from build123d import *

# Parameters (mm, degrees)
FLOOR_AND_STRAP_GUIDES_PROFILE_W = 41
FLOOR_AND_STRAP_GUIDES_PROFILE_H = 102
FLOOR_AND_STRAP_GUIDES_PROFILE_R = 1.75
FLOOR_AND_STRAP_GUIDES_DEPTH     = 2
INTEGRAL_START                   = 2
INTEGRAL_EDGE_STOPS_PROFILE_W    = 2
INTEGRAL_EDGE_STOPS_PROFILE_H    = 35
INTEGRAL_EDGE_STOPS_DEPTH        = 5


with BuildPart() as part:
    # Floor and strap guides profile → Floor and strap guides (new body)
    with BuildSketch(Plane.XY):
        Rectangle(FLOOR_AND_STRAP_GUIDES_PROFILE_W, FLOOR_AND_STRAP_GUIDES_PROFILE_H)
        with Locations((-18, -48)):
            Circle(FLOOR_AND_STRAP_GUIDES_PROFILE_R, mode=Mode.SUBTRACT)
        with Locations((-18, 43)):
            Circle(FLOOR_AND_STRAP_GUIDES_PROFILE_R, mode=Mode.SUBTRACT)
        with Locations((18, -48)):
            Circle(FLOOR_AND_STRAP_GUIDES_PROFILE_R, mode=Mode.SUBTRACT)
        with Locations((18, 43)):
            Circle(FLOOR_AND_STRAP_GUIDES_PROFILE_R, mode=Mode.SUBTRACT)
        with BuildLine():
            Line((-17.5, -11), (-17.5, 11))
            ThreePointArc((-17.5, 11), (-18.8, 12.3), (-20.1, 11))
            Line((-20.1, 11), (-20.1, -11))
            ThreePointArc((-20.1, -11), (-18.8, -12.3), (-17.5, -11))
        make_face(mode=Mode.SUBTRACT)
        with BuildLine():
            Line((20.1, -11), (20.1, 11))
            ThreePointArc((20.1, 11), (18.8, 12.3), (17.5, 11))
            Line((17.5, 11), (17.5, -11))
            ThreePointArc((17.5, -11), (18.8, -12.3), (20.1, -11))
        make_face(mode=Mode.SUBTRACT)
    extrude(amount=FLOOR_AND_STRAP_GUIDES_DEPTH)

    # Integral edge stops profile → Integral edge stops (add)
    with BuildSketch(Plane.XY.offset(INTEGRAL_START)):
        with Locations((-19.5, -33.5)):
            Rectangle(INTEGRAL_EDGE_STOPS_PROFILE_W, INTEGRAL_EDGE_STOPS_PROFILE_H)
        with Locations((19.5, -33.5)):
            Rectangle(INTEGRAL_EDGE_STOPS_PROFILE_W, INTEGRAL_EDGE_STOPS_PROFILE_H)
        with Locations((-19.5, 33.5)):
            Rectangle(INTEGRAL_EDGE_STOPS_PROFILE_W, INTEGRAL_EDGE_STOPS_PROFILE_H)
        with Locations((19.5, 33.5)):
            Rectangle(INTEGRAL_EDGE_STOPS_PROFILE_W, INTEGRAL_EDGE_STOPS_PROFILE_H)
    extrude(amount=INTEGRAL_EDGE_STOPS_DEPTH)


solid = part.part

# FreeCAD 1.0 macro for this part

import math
import FreeCAD as App
import Part
import Sketcher
from FreeCAD import Vector

doc = App.newDocument("Part")
body = doc.addObject("PartDesign::Body", "Body")

sketch1 = doc.addObject("Sketcher::SketchObject", "Sketch")
body.addObject(sketch1)
sketch1.AttachmentSupport = (doc.XY_Plane, [""])
sketch1.MapMode = "FlatFace"
sketch1.addGeometry(Part.LineSegment(Vector(-20.5, 51, 0), Vector(-20.5, -51, 0)), False)
sketch1.addGeometry(Part.LineSegment(Vector(-20.5, -51, 0), Vector(20.5, -51, 0)), False)
sketch1.addGeometry(Part.LineSegment(Vector(20.5, -51, 0), Vector(20.5, 51, 0)), False)
sketch1.addGeometry(Part.LineSegment(Vector(20.5, 51, 0), Vector(-20.5, 51, 0)), False)
sketch1.addGeometry(Part.Circle(Vector(-18, -48, 0), Vector(0, 0, 1), 1.8), False)
sketch1.addGeometry(Part.Circle(Vector(18, -48, 0), Vector(0, 0, 1), 1.8), False)
sketch1.addGeometry(Part.LineSegment(Vector(-17.5, 11, 0), Vector(-17.5, -11, 0)), False)
sketch1.addGeometry(Part.ArcOfCircle(Part.Circle(Vector(-18.8, -11, 0), Vector(0, 0, 1), 1.3), math.radians(180), math.radians(360)), False)
sketch1.addGeometry(Part.LineSegment(Vector(-20.1, -11, 0), Vector(-20.1, 11, 0)), False)
sketch1.addGeometry(Part.ArcOfCircle(Part.Circle(Vector(-18.8, 11, 0), Vector(0, 0, 1), 1.3), math.radians(0), math.radians(180)), False)
sketch1.addGeometry(Part.Circle(Vector(-18, 43, 0), Vector(0, 0, 1), 1.8), False)
sketch1.addGeometry(Part.LineSegment(Vector(20.1, 11, 0), Vector(20.1, -11, 0)), False)
sketch1.addGeometry(Part.ArcOfCircle(Part.Circle(Vector(18.8, -11, 0), Vector(0, 0, 1), 1.3), math.radians(180), math.radians(360)), False)
sketch1.addGeometry(Part.LineSegment(Vector(17.5, -11, 0), Vector(17.5, 11, 0)), False)
sketch1.addGeometry(Part.ArcOfCircle(Part.Circle(Vector(18.8, 11, 0), Vector(0, 0, 1), 1.3), math.radians(0), math.radians(180)), False)
sketch1.addGeometry(Part.Circle(Vector(18, 43, 0), Vector(0, 0, 1), 1.8), False)
sketch1.addConstraint(Sketcher.Constraint("Coincident", 0, 2, 1, 1))
sketch1.addConstraint(Sketcher.Constraint("Coincident", 1, 2, 2, 1))
sketch1.addConstraint(Sketcher.Constraint("Coincident", 2, 2, 3, 1))
sketch1.addConstraint(Sketcher.Constraint("Coincident", 3, 2, 0, 1))
sketch1.addConstraint(Sketcher.Constraint("Tangent", 6, 2, 7, 2))
sketch1.addConstraint(Sketcher.Constraint("Tangent", 7, 1, 8, 1))
sketch1.addConstraint(Sketcher.Constraint("Tangent", 8, 2, 9, 2))
sketch1.addConstraint(Sketcher.Constraint("Tangent", 9, 1, 6, 1))
sketch1.addConstraint(Sketcher.Constraint("Tangent", 11, 2, 12, 2))
sketch1.addConstraint(Sketcher.Constraint("Tangent", 12, 1, 13, 1))
sketch1.addConstraint(Sketcher.Constraint("Tangent", 13, 2, 14, 2))
sketch1.addConstraint(Sketcher.Constraint("Tangent", 14, 1, 11, 1))
sketch1.addConstraint(Sketcher.Constraint("Vertical", 0))
sketch1.addConstraint(Sketcher.Constraint("Horizontal", 1))
sketch1.addConstraint(Sketcher.Constraint("Vertical", 2))
sketch1.addConstraint(Sketcher.Constraint("Horizontal", 3))
sketch1.addConstraint(Sketcher.Constraint("Vertical", 6))
sketch1.addConstraint(Sketcher.Constraint("Vertical", 8))
sketch1.addConstraint(Sketcher.Constraint("Vertical", 11))
sketch1.addConstraint(Sketcher.Constraint("Vertical", 13))
sketch1.addConstraint(Sketcher.Constraint("Equal", 4, 5))
sketch1.addConstraint(Sketcher.Constraint("Equal", 5, 10))
sketch1.addConstraint(Sketcher.Constraint("Equal", 9, 12))
sketch1.addConstraint(Sketcher.Constraint("Equal", 10, 15))
sketch1.addConstraint(Sketcher.Constraint("Symmetric", 9, 3, 12, 3, -1, 1))
sketch1.addConstraint(Sketcher.Constraint("Symmetric", 0, 2, 2, 2, -1, 1))
sketch1.addConstraint(Sketcher.Constraint("Symmetric", 4, 3, 5, 3, -2))
sketch1.addConstraint(Sketcher.Constraint("Symmetric", 10, 3, 15, 3, -2))
sketch1.addConstraint(Sketcher.Constraint("Horizontal", 7, 3, 12, 3))
sketch1.addConstraint(Sketcher.Constraint("Horizontal", 9, 3, 14, 3))
sketch1.addConstraint(Sketcher.Constraint("Vertical", 4, 3, 10, 3))
sketch1.addConstraint(Sketcher.Constraint("Diameter", 4, 3.5))
sketch1.addConstraint(Sketcher.Constraint("Radius", 7, 1.3))
sketch1.addConstraint(Sketcher.Constraint("DistanceX", 1, 1, 1, 2, 41.0))
sketch1.addConstraint(Sketcher.Constraint("DistanceY", 0, 2, 0, 1, 102.0))
sketch1.addConstraint(Sketcher.Constraint("DistanceY", 6, 2, 6, 1, 22.0))
sketch1.addConstraint(Sketcher.Constraint("DistanceX", 4, 3, -1, 1, 18.0))
sketch1.addConstraint(Sketcher.Constraint("DistanceY", 4, 3, -1, 1, 48.0))
sketch1.addConstraint(Sketcher.Constraint("DistanceY", -1, 1, 10, 3, 43.0))
sketch1.addConstraint(Sketcher.Constraint("DistanceX", 0, 2, 6, 2, 3.0))
pad1 = doc.addObject("PartDesign::Pad", "Pad")
body.addObject(pad1)
pad1.Profile = sketch1
pad1.Length = 2

sketch2 = doc.addObject("Sketcher::SketchObject", "Sketch001")
body.addObject(sketch2)
sketch2.AttachmentSupport = (doc.XY_Plane, [""])
sketch2.MapMode = "FlatFace"
sketch2.AttachmentOffset = App.Placement(Vector(0, 0, 2), App.Rotation())
sketch2.addGeometry(Part.LineSegment(Vector(-20.5, -16, 0), Vector(-20.5, -51, 0)), False)
sketch2.addGeometry(Part.LineSegment(Vector(-20.5, -51, 0), Vector(-18.5, -51, 0)), False)
sketch2.addGeometry(Part.LineSegment(Vector(-18.5, -51, 0), Vector(-18.5, -16, 0)), False)
sketch2.addGeometry(Part.LineSegment(Vector(-18.5, -16, 0), Vector(-20.5, -16, 0)), False)
sketch2.addGeometry(Part.LineSegment(Vector(18.5, -16, 0), Vector(18.5, -51, 0)), False)
sketch2.addGeometry(Part.LineSegment(Vector(18.5, -51, 0), Vector(20.5, -51, 0)), False)
sketch2.addGeometry(Part.LineSegment(Vector(20.5, -51, 0), Vector(20.5, -16, 0)), False)
sketch2.addGeometry(Part.LineSegment(Vector(20.5, -16, 0), Vector(18.5, -16, 0)), False)
sketch2.addGeometry(Part.LineSegment(Vector(-20.5, 51, 0), Vector(-20.5, 16, 0)), False)
sketch2.addGeometry(Part.LineSegment(Vector(-20.5, 16, 0), Vector(-18.5, 16, 0)), False)
sketch2.addGeometry(Part.LineSegment(Vector(-18.5, 16, 0), Vector(-18.5, 51, 0)), False)
sketch2.addGeometry(Part.LineSegment(Vector(-18.5, 51, 0), Vector(-20.5, 51, 0)), False)
sketch2.addGeometry(Part.LineSegment(Vector(18.5, 51, 0), Vector(18.5, 16, 0)), False)
sketch2.addGeometry(Part.LineSegment(Vector(18.5, 16, 0), Vector(20.5, 16, 0)), False)
sketch2.addGeometry(Part.LineSegment(Vector(20.5, 16, 0), Vector(20.5, 51, 0)), False)
sketch2.addGeometry(Part.LineSegment(Vector(20.5, 51, 0), Vector(18.5, 51, 0)), False)
sketch2.addConstraint(Sketcher.Constraint("Coincident", 0, 2, 1, 1))
sketch2.addConstraint(Sketcher.Constraint("Coincident", 1, 2, 2, 1))
sketch2.addConstraint(Sketcher.Constraint("Coincident", 2, 2, 3, 1))
sketch2.addConstraint(Sketcher.Constraint("Coincident", 3, 2, 0, 1))
sketch2.addConstraint(Sketcher.Constraint("Coincident", 4, 2, 5, 1))
sketch2.addConstraint(Sketcher.Constraint("Coincident", 5, 2, 6, 1))
sketch2.addConstraint(Sketcher.Constraint("Coincident", 6, 2, 7, 1))
sketch2.addConstraint(Sketcher.Constraint("Coincident", 7, 2, 4, 1))
sketch2.addConstraint(Sketcher.Constraint("Coincident", 8, 2, 9, 1))
sketch2.addConstraint(Sketcher.Constraint("Coincident", 9, 2, 10, 1))
sketch2.addConstraint(Sketcher.Constraint("Coincident", 10, 2, 11, 1))
sketch2.addConstraint(Sketcher.Constraint("Coincident", 11, 2, 8, 1))
sketch2.addConstraint(Sketcher.Constraint("Coincident", 12, 2, 13, 1))
sketch2.addConstraint(Sketcher.Constraint("Coincident", 13, 2, 14, 1))
sketch2.addConstraint(Sketcher.Constraint("Coincident", 14, 2, 15, 1))
sketch2.addConstraint(Sketcher.Constraint("Coincident", 15, 2, 12, 1))
sketch2.addConstraint(Sketcher.Constraint("Vertical", 0))
sketch2.addConstraint(Sketcher.Constraint("Horizontal", 1))
sketch2.addConstraint(Sketcher.Constraint("Vertical", 2))
sketch2.addConstraint(Sketcher.Constraint("Horizontal", 3))
sketch2.addConstraint(Sketcher.Constraint("Vertical", 4))
sketch2.addConstraint(Sketcher.Constraint("Horizontal", 5))
sketch2.addConstraint(Sketcher.Constraint("Vertical", 6))
sketch2.addConstraint(Sketcher.Constraint("Horizontal", 7))
sketch2.addConstraint(Sketcher.Constraint("Vertical", 8))
sketch2.addConstraint(Sketcher.Constraint("Horizontal", 9))
sketch2.addConstraint(Sketcher.Constraint("Vertical", 10))
sketch2.addConstraint(Sketcher.Constraint("Horizontal", 11))
sketch2.addConstraint(Sketcher.Constraint("Vertical", 12))
sketch2.addConstraint(Sketcher.Constraint("Horizontal", 13))
sketch2.addConstraint(Sketcher.Constraint("Vertical", 14))
sketch2.addConstraint(Sketcher.Constraint("Horizontal", 15))
sketch2.addConstraint(Sketcher.Constraint("Symmetric", 6, 2, 8, 2, -1, 1))
sketch2.addConstraint(Sketcher.Constraint("Symmetric", 4, 2, 10, 2, -1, 1))
sketch2.addConstraint(Sketcher.Constraint("Symmetric", 2, 2, 12, 2, -1, 1))
sketch2.addConstraint(Sketcher.Constraint("Symmetric", 0, 2, 14, 2, -1, 1))
sketch2.addConstraint(Sketcher.Constraint("Symmetric", 1, 2, 4, 2, -2))
sketch2.addConstraint(Sketcher.Constraint("Symmetric", 3, 2, 6, 2, -2))
sketch2.addConstraint(Sketcher.Constraint("DistanceX", 1, 1, 1, 2, 2.0))
sketch2.addConstraint(Sketcher.Constraint("DistanceY", 0, 2, 0, 1, 35.0))
sketch2.addConstraint(Sketcher.Constraint("DistanceY", 0, 2, -1, 1, 51.0))
sketch2.addConstraint(Sketcher.Constraint("DistanceX", 1, 2, 4, 2, 37.0))
pad2 = doc.addObject("PartDesign::Pad", "Pad001")
body.addObject(pad2)
pad2.Profile = sketch2
pad2.Length = 5

doc.recompute()
